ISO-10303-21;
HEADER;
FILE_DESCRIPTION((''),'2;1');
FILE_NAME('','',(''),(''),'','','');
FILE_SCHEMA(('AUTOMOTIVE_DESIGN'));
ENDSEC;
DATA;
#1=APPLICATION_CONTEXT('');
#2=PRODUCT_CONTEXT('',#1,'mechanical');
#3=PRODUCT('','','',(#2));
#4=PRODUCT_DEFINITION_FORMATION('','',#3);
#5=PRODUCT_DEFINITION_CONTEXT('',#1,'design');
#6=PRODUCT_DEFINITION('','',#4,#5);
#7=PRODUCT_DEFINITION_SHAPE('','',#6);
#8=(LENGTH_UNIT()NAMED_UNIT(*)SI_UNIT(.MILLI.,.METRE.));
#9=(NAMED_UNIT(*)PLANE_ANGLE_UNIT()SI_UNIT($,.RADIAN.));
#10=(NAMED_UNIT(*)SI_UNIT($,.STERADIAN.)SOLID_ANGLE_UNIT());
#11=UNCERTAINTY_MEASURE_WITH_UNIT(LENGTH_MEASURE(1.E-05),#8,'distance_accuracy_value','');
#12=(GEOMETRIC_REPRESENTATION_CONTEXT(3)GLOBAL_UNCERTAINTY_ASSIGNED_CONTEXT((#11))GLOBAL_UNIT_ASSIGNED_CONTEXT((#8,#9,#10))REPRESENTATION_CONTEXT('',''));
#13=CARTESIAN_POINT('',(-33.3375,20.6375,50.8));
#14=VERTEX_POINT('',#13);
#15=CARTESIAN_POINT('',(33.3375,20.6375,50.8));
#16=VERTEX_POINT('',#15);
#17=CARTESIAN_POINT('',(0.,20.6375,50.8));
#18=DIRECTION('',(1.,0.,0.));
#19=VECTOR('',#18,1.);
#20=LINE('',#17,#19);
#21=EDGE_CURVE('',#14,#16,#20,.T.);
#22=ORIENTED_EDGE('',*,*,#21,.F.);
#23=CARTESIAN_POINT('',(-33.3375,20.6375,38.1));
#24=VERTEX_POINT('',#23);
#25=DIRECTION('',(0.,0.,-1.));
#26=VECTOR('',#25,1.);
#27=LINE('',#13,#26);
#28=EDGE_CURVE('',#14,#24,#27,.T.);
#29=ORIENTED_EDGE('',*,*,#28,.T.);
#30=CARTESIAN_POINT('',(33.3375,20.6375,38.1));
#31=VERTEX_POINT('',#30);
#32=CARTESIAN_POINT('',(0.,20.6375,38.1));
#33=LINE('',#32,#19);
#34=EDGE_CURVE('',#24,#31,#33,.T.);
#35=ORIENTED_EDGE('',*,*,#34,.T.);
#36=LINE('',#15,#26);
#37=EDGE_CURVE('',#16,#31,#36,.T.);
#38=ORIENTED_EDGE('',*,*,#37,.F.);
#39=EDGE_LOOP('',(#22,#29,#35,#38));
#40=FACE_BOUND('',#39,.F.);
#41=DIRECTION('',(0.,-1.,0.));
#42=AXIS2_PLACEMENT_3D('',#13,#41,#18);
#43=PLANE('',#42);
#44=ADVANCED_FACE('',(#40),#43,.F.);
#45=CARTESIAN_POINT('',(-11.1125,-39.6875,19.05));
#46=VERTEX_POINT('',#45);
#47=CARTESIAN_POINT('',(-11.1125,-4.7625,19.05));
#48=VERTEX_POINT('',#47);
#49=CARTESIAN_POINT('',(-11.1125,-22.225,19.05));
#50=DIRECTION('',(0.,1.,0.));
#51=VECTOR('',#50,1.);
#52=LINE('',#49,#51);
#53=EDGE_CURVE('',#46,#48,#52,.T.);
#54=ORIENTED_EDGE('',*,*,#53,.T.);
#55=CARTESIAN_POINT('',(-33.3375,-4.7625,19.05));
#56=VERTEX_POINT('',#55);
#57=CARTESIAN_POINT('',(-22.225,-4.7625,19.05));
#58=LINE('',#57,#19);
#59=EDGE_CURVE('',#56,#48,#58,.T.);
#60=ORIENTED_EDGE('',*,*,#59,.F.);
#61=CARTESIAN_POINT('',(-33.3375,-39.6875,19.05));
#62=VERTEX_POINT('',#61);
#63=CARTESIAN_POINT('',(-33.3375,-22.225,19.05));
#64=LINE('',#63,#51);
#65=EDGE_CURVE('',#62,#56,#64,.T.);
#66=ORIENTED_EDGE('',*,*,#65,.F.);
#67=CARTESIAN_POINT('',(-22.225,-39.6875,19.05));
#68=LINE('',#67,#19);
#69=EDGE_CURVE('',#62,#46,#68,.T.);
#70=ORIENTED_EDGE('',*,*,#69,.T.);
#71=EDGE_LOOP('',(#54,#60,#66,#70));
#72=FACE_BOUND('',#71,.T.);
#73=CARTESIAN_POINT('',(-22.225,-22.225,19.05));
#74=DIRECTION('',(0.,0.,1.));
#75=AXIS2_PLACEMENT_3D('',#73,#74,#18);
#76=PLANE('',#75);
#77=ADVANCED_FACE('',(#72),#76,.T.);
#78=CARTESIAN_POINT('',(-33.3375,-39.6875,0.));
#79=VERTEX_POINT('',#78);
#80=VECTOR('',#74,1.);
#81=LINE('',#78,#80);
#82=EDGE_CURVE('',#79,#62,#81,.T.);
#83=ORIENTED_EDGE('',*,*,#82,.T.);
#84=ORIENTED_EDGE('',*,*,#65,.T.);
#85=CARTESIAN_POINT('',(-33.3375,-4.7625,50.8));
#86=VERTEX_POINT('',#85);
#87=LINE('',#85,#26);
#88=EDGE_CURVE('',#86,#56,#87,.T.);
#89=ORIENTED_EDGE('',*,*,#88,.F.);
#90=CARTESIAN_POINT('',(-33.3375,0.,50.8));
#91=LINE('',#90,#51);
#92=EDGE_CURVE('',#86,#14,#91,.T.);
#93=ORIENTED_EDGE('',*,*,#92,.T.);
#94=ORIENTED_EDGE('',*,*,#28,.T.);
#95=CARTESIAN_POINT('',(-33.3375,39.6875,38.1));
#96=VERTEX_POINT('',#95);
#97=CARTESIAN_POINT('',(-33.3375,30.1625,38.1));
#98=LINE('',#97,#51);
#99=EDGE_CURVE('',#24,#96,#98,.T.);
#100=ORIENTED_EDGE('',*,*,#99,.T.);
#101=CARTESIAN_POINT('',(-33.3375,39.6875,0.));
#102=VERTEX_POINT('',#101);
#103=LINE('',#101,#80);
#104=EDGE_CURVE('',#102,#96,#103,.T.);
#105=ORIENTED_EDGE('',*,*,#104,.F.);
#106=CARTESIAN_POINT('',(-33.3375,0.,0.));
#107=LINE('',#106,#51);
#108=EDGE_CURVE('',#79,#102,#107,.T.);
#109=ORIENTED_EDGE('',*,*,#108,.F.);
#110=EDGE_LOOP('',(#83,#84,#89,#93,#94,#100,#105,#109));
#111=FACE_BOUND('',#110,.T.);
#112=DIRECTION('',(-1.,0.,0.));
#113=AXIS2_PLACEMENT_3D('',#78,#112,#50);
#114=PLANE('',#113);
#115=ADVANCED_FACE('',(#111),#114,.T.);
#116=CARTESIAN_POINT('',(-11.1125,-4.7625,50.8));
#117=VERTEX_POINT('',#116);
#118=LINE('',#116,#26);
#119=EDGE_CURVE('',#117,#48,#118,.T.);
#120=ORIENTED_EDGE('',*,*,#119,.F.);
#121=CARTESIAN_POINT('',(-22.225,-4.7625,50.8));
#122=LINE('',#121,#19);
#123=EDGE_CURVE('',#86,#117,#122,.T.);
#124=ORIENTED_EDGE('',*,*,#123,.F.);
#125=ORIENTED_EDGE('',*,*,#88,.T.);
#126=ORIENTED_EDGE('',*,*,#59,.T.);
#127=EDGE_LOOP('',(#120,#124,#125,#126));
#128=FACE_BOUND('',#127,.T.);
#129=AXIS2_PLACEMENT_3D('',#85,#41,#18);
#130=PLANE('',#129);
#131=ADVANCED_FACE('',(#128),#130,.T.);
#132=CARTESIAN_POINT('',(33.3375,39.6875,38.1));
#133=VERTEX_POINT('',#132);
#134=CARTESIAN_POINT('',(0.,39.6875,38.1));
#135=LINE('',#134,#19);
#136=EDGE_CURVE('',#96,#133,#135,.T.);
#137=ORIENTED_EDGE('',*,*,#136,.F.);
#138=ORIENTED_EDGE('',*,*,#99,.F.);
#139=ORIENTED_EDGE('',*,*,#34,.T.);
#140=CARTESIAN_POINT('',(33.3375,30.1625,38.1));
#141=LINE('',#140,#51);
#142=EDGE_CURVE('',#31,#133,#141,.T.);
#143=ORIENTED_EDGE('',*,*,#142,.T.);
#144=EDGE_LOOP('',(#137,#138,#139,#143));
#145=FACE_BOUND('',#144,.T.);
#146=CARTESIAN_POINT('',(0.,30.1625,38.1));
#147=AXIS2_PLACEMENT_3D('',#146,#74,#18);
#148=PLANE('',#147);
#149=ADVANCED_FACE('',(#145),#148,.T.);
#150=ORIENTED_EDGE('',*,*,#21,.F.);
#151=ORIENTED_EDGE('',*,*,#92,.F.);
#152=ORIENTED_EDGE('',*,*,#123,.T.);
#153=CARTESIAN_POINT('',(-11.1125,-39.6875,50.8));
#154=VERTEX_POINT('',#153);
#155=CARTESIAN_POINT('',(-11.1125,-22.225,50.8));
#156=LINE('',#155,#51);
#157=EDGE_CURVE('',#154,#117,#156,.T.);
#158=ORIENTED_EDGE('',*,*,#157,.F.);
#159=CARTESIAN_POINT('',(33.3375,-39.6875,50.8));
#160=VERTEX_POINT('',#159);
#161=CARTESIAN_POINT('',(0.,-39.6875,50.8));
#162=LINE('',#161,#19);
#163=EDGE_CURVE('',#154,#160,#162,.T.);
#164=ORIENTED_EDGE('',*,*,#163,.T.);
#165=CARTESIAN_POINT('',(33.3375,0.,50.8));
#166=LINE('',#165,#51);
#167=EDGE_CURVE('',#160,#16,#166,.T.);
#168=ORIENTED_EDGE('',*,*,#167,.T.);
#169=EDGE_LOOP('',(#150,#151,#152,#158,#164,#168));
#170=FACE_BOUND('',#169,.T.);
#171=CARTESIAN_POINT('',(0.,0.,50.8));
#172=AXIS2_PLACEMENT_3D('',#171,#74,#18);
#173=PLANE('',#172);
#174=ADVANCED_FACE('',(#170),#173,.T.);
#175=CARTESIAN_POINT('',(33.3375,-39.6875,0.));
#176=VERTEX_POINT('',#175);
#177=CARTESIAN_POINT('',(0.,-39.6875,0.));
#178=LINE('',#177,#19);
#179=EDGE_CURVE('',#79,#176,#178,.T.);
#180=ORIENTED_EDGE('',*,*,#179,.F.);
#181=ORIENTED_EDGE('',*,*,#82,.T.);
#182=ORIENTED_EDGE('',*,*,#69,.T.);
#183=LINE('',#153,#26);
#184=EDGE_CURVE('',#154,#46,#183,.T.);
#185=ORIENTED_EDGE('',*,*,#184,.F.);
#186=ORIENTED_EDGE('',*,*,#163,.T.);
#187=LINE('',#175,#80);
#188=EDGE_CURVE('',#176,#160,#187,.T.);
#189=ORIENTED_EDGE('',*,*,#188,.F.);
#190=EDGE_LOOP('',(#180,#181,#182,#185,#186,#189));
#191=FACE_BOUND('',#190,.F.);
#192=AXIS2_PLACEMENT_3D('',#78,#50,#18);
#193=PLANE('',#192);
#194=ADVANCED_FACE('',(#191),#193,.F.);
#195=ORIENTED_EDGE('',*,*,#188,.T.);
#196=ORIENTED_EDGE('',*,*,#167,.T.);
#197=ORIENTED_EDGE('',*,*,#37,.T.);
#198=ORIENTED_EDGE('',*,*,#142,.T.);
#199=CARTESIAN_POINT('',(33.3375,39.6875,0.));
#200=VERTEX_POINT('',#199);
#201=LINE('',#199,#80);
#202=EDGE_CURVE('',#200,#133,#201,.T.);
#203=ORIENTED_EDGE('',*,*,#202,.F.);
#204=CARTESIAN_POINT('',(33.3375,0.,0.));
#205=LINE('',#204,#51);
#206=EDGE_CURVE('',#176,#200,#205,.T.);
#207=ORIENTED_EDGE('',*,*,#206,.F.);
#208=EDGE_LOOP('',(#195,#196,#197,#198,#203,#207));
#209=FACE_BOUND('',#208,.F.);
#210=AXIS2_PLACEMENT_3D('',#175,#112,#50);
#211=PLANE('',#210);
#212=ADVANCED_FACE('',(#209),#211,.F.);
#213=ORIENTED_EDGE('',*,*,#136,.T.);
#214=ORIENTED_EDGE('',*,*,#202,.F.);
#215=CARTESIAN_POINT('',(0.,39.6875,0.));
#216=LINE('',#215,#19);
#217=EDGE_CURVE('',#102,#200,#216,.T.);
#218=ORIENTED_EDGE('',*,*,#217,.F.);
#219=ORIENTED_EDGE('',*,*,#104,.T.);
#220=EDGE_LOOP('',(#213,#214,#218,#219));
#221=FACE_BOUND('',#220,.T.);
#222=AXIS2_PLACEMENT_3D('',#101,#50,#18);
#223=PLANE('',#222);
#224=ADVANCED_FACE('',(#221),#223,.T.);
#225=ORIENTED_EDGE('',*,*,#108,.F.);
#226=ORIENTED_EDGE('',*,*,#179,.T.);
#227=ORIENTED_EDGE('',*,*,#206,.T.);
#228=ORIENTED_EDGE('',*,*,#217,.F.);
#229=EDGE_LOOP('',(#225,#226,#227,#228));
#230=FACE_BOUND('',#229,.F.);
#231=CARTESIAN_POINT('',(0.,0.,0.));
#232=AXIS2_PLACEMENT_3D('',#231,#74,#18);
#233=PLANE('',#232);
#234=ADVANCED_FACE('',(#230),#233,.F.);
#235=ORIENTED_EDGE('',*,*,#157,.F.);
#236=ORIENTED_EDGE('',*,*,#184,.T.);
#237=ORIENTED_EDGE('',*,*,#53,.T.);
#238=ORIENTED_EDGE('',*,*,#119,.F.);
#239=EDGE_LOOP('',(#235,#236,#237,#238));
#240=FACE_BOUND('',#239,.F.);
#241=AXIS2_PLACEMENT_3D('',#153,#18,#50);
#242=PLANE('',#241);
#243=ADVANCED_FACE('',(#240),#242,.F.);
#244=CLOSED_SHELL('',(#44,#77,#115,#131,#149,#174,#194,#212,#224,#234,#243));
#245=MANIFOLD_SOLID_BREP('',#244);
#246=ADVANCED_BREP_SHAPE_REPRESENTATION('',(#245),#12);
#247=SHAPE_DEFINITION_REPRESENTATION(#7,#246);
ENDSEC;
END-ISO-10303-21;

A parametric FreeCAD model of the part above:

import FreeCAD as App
import Part
import Sketcher
from FreeCAD import Vector
Q = App.Units.Quantity


def add_polygon(sketch, points):
    """Adds a closed chain of lines whose ends are joined by coincident constraints."""
    first, n = sketch.GeometryCount, len(points)
    for a, b in zip(points, points[1:] + points[:1]):
        sketch.addGeometry(Part.LineSegment(App.Vector(*a, 0), App.Vector(*b, 0)), False)
    for i in range(n):
        sketch.addConstraint(Sketcher.Constraint("Coincident", first + i, 2, first + (i + 1) % n, 1))

doc = App.newDocument("Part")
body = doc.addObject("PartDesign::Body", "Body")

sketch1 = body.newObject("Sketcher::SketchObject", "Sketch")
sketch1.AttachmentSupport = (doc.getObject("XY_Plane"), [""])
sketch1.MapMode = "FlatFace"
add_polygon(sketch1, [(-33, 40), (-33, -40), (33, -40), (33, 40)])
sketch1.addConstraint(Sketcher.Constraint("Vertical", 0))
sketch1.addConstraint(Sketcher.Constraint("Horizontal", 1))
sketch1.addConstraint(Sketcher.Constraint("Vertical", 2))
sketch1.addConstraint(Sketcher.Constraint("Horizontal", 3))
sketch1.addConstraint(Sketcher.Constraint("Symmetric", 0, 2, 2, 2, -1, 1))
sketch1.addConstraint(Sketcher.Constraint("DistanceX", 1, 1, 1, 2, Q("2.625 in")))
sketch1.addConstraint(Sketcher.Constraint("DistanceY", 0, 2, 0, 1, Q("3.125 in")))
pad1 = body.newObject("PartDesign::Pad", "Pad")
pad1.Profile = sketch1
pad1.Length = Q("2 in")

sketch2 = body.newObject("Sketcher::SketchObject", "Sketch001")
sketch2.AttachmentSupport = (doc.getObject("XY_Plane"), [""])
sketch2.MapMode = "FlatFace"
sketch2.AttachmentOffset = App.Placement(Vector(0, 0, 2 * 25.4), App.Rotation())
add_polygon(sketch2, [(-33, 40), (-33, 21), (33, 21), (33, 40)])
sketch2.addConstraint(Sketcher.Constraint("Vertical", 0))
sketch2.addConstraint(Sketcher.Constraint("Horizontal", 1))
sketch2.addConstraint(Sketcher.Constraint("Vertical", 2))
sketch2.addConstraint(Sketcher.Constraint("Horizontal", 3))
sketch2.addConstraint(Sketcher.Constraint("DistanceY", 0, 2, 0, 1, Q("0.75 in")))
sketch2.addConstraint(Sketcher.Constraint("DistanceX", 1, 1, 1, 2, Q("2.625 in")))
sketch2.addConstraint(Sketcher.Constraint("DistanceX", 0, 2, -1, 1, Q("1.3125 in")))
sketch2.addConstraint(Sketcher.Constraint("DistanceY", -1, 1, 0, 2, Q("0.8125 in")))
pocket1 = body.newObject("PartDesign::Pocket", "Pocket")
pocket1.Profile = sketch2
pocket1.Length = Q("0.5 in")

sketch3 = body.newObject("Sketcher::SketchObject", "Sketch002")
sketch3.AttachmentSupport = (doc.getObject("XY_Plane"), [""])
sketch3.MapMode = "FlatFace"
sketch3.AttachmentOffset = App.Placement(Vector(0, 0, 2 * 25.4), App.Rotation())
add_polygon(sketch3, [(-33, -5), (-33, -40), (-11, -40), (-11, -5)])
sketch3.addConstraint(Sketcher.Constraint("Vertical", 0))
sketch3.addConstraint(Sketcher.Constraint("Horizontal", 1))
sketch3.addConstraint(Sketcher.Constraint("Vertical", 2))
sketch3.addConstraint(Sketcher.Constraint("Horizontal", 3))
sketch3.addConstraint(Sketcher.Constraint("DistanceX", 1, 1, 1, 2, Q("0.875 in")))
sketch3.addConstraint(Sketcher.Constraint("DistanceY", 0, 2, 0, 1, Q("1.375 in")))
sketch3.addConstraint(Sketcher.Constraint("DistanceX", 0, 2, -1, 1, Q("1.3125 in")))
sketch3.addConstraint(Sketcher.Constraint("DistanceY", 0, 2, -1, 1, Q("1.5625 in")))
pocket2 = body.newObject("PartDesign::Pocket", "Pocket001")
pocket2.Profile = sketch3
pocket2.Length = Q("1.25 in")

doc.recompute()
